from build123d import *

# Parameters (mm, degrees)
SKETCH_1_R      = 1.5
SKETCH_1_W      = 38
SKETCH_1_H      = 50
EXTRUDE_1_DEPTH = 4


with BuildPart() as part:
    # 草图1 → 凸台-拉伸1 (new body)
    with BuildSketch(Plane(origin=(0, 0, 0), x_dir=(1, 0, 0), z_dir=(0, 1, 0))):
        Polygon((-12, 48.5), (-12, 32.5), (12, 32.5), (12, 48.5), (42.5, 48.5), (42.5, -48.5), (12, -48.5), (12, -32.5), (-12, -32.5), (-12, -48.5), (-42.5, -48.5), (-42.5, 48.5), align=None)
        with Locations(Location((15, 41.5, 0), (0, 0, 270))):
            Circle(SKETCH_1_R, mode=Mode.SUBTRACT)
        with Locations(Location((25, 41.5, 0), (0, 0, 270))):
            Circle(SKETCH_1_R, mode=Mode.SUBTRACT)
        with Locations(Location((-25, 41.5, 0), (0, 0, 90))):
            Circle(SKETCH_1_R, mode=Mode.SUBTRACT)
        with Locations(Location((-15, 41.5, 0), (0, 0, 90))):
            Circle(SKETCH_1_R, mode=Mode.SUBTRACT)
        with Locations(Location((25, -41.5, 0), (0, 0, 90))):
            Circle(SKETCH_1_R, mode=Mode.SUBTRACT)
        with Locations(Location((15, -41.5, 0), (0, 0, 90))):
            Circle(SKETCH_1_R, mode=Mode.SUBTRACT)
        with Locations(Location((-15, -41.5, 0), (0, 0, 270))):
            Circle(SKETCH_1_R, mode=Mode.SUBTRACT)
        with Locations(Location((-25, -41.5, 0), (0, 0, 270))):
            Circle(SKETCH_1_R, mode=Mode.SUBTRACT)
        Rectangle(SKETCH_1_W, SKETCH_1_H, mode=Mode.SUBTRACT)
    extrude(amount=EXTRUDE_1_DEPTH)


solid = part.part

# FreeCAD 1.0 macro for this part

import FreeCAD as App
import Part
import Sketcher

doc = App.newDocument("Part")
body = doc.addObject("PartDesign::Body", "Body")

# Sketch on XZ plane
sketch1 = doc.addObject("Sketcher::SketchObject", "Sketch")
body.addObject(sketch1)
sketch1.AttachmentSupport = (doc.XZ_Plane, [""])
sketch1.MapMode = "FlatFace"
sketch1.addGeometry([
    Part.LineSegment(App.Vector(-12, -32.5, 0), App.Vector(-12, -48.5, 0)),  # 0
    Part.LineSegment(App.Vector(-12, -48.5, 0), App.Vector(-42.5, -48.5, 0)),  # 1
    Part.LineSegment(App.Vector(-42.5, -48.5, 0), App.Vector(-42.5, 48.5, 0)),  # 2
    Part.LineSegment(App.Vector(-42.5, 48.5, 0), App.Vector(-12, 48.5, 0)),  # 3
    Part.LineSegment(App.Vector(-12, 48.5, 0), App.Vector(-12, 32.5, 0)),  # 4
    Part.LineSegment(App.Vector(-12, 32.5, 0), App.Vector(12, 32.5, 0)),  # 5
    Part.LineSegment(App.Vector(12, 32.5, 0), App.Vector(12, 48.5, 0)),  # 6
    Part.LineSegment(App.Vector(12, 48.5, 0), App.Vector(42.5, 48.5, 0)),  # 7
    Part.LineSegment(App.Vector(42.5, 48.5, 0), App.Vector(42.5, -48.5, 0)),  # 8
    Part.LineSegment(App.Vector(42.5, -48.5, 0), App.Vector(12, -48.5, 0)),  # 9
    Part.LineSegment(App.Vector(12, -48.5, 0), App.Vector(12, -32.5, 0)),  # 10
    Part.LineSegment(App.Vector(12, -32.5, 0), App.Vector(-12, -32.5, 0)),  # 11
    Part.Circle(App.Vector(25, 41.5, 0), App.Vector(0, 0, 1), 1.5),  # 12
    Part.Circle(App.Vector(15, 41.5, 0), App.Vector(0, 0, 1), 1.5),  # 13
    Part.Circle(App.Vector(-15, 41.5, 0), App.Vector(0, 0, 1), 1.5),  # 14
    Part.Circle(App.Vector(-25, 41.5, 0), App.Vector(0, 0, 1), 1.5),  # 15
    Part.Circle(App.Vector(25, -41.5, 0), App.Vector(0, 0, 1), 1.5),  # 16
    Part.Circle(App.Vector(15, -41.5, 0), App.Vector(0, 0, 1), 1.5),  # 17
    Part.LineSegment(App.Vector(-19, 25, 0), App.Vector(-19, -25, 0)),  # 18
    Part.LineSegment(App.Vector(-19, -25, 0), App.Vector(19, -25, 0)),  # 19
    Part.LineSegment(App.Vector(19, -25, 0), App.Vector(19, 25, 0)),  # 20
    Part.LineSegment(App.Vector(19, 25, 0), App.Vector(-19, 25, 0)),  # 21
    Part.Circle(App.Vector(-15, -41.5, 0), App.Vector(0, 0, 1), 1.5),  # 22
    Part.Circle(App.Vector(-25, -41.5, 0), App.Vector(0, 0, 1), 1.5),  # 23
], False)
sketch1.addConstraint([
    Sketcher.Constraint("Coincident", 0, 2, 1, 1),
    Sketcher.Constraint("Coincident", 1, 2, 2, 1),
    Sketcher.Constraint("Coincident", 2, 2, 3, 1),
    Sketcher.Constraint("Coincident", 3, 2, 4, 1),
    Sketcher.Constraint("Coincident", 4, 2, 5, 1),
    Sketcher.Constraint("Coincident", 5, 2, 6, 1),
    Sketcher.Constraint("Coincident", 6, 2, 7, 1),
    Sketcher.Constraint("Coincident", 7, 2, 8, 1),
    Sketcher.Constraint("Coincident", 8, 2, 9, 1),
    Sketcher.Constraint("Coincident", 9, 2, 10, 1),
    Sketcher.Constraint("Coincident", 10, 2, 11, 1),
    Sketcher.Constraint("Coincident", 11, 2, 0, 1),
    Sketcher.Constraint("Coincident", 18, 2, 19, 1),
    Sketcher.Constraint("Coincident", 19, 2, 20, 1),
    Sketcher.Constraint("Coincident", 20, 2, 21, 1),
    Sketcher.Constraint("Coincident", 21, 2, 18, 1),
    Sketcher.Constraint("Vertical", 0),
    Sketcher.Constraint("Horizontal", 1),
    Sketcher.Constraint("Vertical", 2),
    Sketcher.Constraint("Horizontal", 3),
    Sketcher.Constraint("Vertical", 4),
    Sketcher.Constraint("Horizontal", 5),
    Sketcher.Constraint("Vertical", 6),
    Sketcher.Constraint("Horizontal", 7),
    Sketcher.Constraint("Vertical", 8),
    Sketcher.Constraint("Horizontal", 9),
    Sketcher.Constraint("Vertical", 10),
    Sketcher.Constraint("Horizontal", 11),
    Sketcher.Constraint("Vertical", 18),
    Sketcher.Constraint("Horizontal", 19),
    Sketcher.Constraint("Vertical", 20),
    Sketcher.Constraint("Horizontal", 21),
    Sketcher.Constraint("Equal", 12, 13),
    Sketcher.Constraint("Equal", 13, 14),
    Sketcher.Constraint("Equal", 14, 15),
    Sketcher.Constraint("Equal", 15, 16),
    Sketcher.Constraint("Equal", 16, 17),
    Sketcher.Constraint("Equal", 17, 22),
    Sketcher.Constraint("Equal", 22, 23),
    Sketcher.Constraint("Symmetric", 15, 3, 16, 3, -1, 1),
    Sketcher.Constraint("Symmetric", 14, 3, 17, 3, -1, 1),
    Sketcher.Constraint("Symmetric", 13, 3, 22, 3, -1, 1),
    Sketcher.Constraint("Symmetric", 12, 3, 23, 3, -1, 1),
    Sketcher.Constraint("Symmetric", 0, 2, 6, 2, -1, 1),
    Sketcher.Constraint("Symmetric", 2, 2, 8, 2, -1, 1),
    Sketcher.Constraint("Symmetric", 4, 2, 10, 2, -1, 1),
    Sketcher.Constraint("Symmetric", 18, 2, 20, 2, -1, 1),
    Sketcher.Constraint("Symmetric", 13, 3, 14, 3, -2),
    Sketcher.Constraint("Symmetric", 12, 3, 15, 3, -2),
    Sketcher.Constraint("Symmetric", 3, 2, 6, 2, -2),
    Sketcher.Constraint("Horizontal", 12, 3, 13, 3),
    Sketcher.Constraint("Diameter", 12, 3.0),
    Sketcher.Constraint("DistanceX", 5, 1, 5, 2, 24.0),
    Sketcher.Constraint("DistanceX", 19, 1, 19, 2, 38.0),
    Sketcher.Constraint("DistanceY", 0, 2, 0, 1, 16.0),
    Sketcher.Constraint("DistanceY", 2, 1, 2, 2, 97.0),
    Sketcher.Constraint("DistanceY", 18, 2, 18, 1, 50.0),
    Sketcher.Constraint("DistanceX", 1, 2, 1, 1, 30.5),
    Sketcher.Constraint("DistanceX", -1, 1, 12, 3, 25.0),
    Sketcher.Constraint("DistanceX", -1, 1, 13, 3, 15.0),
    Sketcher.Constraint("DistanceY", 16, 3, 12, 3, 83.0),
])
pad1 = doc.addObject("PartDesign::Pad", "Pad")
body.addObject(pad1)
pad1.Profile = sketch1
pad1.Length = 4
pad1.Reversed = True

doc.recompute()
